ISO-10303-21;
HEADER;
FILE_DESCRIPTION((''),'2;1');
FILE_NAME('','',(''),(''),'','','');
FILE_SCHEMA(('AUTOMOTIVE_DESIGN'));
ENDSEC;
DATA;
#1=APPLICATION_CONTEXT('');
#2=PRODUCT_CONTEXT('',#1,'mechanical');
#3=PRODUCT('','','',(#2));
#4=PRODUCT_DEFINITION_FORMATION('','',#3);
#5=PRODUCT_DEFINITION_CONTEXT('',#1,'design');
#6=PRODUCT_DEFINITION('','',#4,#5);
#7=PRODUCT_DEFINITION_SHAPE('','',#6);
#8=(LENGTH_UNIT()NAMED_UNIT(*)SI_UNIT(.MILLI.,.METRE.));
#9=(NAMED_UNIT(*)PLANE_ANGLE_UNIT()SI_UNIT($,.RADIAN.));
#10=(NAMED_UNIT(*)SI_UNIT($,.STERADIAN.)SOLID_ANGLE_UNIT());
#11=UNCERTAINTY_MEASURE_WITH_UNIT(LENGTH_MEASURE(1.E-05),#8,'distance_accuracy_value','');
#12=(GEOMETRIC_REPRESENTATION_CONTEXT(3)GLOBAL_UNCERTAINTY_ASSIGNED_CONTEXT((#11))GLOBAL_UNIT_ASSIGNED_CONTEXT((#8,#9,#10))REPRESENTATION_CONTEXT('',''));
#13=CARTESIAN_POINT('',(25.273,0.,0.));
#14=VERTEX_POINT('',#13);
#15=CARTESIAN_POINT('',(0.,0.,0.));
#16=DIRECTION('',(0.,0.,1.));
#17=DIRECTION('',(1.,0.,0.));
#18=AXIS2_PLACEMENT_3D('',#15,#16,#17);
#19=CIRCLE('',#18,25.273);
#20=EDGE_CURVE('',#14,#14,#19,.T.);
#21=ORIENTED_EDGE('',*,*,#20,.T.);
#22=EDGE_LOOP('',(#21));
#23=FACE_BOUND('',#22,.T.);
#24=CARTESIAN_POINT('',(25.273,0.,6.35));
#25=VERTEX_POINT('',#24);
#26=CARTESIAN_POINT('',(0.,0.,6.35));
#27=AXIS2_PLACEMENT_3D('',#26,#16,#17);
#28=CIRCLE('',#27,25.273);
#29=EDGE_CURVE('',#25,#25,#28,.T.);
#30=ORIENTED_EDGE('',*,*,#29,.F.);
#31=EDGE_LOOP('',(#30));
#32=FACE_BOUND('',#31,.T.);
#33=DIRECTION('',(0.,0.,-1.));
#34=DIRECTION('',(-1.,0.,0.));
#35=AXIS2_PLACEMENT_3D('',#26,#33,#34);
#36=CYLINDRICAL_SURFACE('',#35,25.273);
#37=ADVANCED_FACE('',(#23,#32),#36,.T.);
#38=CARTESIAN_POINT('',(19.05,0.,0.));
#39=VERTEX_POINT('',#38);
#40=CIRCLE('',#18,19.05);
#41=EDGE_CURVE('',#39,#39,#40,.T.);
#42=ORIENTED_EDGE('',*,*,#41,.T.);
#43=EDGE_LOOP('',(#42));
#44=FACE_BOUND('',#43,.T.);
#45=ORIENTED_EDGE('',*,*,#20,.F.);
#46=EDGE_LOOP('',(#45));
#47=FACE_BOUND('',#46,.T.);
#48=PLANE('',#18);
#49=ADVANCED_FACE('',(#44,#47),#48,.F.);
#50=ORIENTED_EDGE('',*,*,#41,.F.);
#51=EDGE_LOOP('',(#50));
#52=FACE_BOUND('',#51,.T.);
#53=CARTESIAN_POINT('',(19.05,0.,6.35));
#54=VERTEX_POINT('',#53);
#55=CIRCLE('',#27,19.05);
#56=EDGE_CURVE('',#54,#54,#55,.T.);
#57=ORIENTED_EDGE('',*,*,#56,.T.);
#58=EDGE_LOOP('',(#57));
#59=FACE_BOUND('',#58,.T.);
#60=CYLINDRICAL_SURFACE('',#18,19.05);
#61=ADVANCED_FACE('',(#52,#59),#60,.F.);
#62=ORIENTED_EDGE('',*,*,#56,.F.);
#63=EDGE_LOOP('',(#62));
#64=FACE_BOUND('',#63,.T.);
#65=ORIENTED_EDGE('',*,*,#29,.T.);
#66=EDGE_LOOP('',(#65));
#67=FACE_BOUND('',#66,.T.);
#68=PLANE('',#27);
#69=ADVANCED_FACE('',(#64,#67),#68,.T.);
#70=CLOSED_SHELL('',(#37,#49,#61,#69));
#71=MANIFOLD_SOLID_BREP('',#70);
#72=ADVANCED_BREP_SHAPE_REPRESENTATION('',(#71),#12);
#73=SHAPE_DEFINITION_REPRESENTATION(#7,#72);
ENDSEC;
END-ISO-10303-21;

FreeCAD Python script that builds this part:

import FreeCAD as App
import Part
import Sketcher
from FreeCAD import Vector
Q = App.Units.Quantity

doc = App.newDocument("Part")
params = doc.addObject("Spreadsheet::Sheet", "Params")
for row, (alias, value) in enumerate([
    ("sketch1_diameter", "1.99 in"),
    ("pad1_length", "0.25 in"),
    ("sketch2_diameter", "1.5 in"),
], start=1):
    params.set(f"A{row}", alias)
    params.set(f"B{row}", "=" + value)
    params.setAlias(f"B{row}", alias)

body = doc.addObject("PartDesign::Body", "Body")

sketch1 = body.newObject("Sketcher::SketchObject", "Sketch")
sketch1.AttachmentSupport = (doc.getObject("XY_Plane"), [""])
sketch1.MapMode = "FlatFace"
sketch1.addGeometry(Part.Circle(Vector(0, 0, 0), Vector(0, 0, 1), 25), False)
sketch1.addConstraint([
    Sketcher.Constraint("Coincident", 0, 3, -1, 1),
    Sketcher.Constraint("Diameter", 0, Q("1.99 in")),
])
sketch1.setExpression("Constraints[1]", "Params.sketch1_diameter")
pad1 = body.newObject("PartDesign::Pad", "Pad")
pad1.Profile = sketch1
pad1.setExpression("Length", "Params.pad1_length")

sketch2 = body.newObject("Sketcher::SketchObject", "Sketch001")
sketch2.AttachmentSupport = (doc.getObject("XY_Plane"), [""])
sketch2.MapMode = "FlatFace"
sketch2.AttachmentOffset = App.Placement(Vector(0, 0, 0.25 * 25.4), App.Rotation())
sketch2.addGeometry(Part.Circle(Vector(0, 0, 0), Vector(0, 0, 1), 19), False)
sketch2.addConstraint([
    Sketcher.Constraint("Coincident", 0, 3, -1, 1),
    Sketcher.Constraint("Diameter", 0, Q("1.5 in")),
])
sketch2.setExpression("Constraints[1]", "Params.sketch2_diameter")
pocket1 = body.newObject("PartDesign::Pocket", "Pocket")
pocket1.Profile = sketch2
pocket1.Type = "ThroughAll"

doc.recompute()
